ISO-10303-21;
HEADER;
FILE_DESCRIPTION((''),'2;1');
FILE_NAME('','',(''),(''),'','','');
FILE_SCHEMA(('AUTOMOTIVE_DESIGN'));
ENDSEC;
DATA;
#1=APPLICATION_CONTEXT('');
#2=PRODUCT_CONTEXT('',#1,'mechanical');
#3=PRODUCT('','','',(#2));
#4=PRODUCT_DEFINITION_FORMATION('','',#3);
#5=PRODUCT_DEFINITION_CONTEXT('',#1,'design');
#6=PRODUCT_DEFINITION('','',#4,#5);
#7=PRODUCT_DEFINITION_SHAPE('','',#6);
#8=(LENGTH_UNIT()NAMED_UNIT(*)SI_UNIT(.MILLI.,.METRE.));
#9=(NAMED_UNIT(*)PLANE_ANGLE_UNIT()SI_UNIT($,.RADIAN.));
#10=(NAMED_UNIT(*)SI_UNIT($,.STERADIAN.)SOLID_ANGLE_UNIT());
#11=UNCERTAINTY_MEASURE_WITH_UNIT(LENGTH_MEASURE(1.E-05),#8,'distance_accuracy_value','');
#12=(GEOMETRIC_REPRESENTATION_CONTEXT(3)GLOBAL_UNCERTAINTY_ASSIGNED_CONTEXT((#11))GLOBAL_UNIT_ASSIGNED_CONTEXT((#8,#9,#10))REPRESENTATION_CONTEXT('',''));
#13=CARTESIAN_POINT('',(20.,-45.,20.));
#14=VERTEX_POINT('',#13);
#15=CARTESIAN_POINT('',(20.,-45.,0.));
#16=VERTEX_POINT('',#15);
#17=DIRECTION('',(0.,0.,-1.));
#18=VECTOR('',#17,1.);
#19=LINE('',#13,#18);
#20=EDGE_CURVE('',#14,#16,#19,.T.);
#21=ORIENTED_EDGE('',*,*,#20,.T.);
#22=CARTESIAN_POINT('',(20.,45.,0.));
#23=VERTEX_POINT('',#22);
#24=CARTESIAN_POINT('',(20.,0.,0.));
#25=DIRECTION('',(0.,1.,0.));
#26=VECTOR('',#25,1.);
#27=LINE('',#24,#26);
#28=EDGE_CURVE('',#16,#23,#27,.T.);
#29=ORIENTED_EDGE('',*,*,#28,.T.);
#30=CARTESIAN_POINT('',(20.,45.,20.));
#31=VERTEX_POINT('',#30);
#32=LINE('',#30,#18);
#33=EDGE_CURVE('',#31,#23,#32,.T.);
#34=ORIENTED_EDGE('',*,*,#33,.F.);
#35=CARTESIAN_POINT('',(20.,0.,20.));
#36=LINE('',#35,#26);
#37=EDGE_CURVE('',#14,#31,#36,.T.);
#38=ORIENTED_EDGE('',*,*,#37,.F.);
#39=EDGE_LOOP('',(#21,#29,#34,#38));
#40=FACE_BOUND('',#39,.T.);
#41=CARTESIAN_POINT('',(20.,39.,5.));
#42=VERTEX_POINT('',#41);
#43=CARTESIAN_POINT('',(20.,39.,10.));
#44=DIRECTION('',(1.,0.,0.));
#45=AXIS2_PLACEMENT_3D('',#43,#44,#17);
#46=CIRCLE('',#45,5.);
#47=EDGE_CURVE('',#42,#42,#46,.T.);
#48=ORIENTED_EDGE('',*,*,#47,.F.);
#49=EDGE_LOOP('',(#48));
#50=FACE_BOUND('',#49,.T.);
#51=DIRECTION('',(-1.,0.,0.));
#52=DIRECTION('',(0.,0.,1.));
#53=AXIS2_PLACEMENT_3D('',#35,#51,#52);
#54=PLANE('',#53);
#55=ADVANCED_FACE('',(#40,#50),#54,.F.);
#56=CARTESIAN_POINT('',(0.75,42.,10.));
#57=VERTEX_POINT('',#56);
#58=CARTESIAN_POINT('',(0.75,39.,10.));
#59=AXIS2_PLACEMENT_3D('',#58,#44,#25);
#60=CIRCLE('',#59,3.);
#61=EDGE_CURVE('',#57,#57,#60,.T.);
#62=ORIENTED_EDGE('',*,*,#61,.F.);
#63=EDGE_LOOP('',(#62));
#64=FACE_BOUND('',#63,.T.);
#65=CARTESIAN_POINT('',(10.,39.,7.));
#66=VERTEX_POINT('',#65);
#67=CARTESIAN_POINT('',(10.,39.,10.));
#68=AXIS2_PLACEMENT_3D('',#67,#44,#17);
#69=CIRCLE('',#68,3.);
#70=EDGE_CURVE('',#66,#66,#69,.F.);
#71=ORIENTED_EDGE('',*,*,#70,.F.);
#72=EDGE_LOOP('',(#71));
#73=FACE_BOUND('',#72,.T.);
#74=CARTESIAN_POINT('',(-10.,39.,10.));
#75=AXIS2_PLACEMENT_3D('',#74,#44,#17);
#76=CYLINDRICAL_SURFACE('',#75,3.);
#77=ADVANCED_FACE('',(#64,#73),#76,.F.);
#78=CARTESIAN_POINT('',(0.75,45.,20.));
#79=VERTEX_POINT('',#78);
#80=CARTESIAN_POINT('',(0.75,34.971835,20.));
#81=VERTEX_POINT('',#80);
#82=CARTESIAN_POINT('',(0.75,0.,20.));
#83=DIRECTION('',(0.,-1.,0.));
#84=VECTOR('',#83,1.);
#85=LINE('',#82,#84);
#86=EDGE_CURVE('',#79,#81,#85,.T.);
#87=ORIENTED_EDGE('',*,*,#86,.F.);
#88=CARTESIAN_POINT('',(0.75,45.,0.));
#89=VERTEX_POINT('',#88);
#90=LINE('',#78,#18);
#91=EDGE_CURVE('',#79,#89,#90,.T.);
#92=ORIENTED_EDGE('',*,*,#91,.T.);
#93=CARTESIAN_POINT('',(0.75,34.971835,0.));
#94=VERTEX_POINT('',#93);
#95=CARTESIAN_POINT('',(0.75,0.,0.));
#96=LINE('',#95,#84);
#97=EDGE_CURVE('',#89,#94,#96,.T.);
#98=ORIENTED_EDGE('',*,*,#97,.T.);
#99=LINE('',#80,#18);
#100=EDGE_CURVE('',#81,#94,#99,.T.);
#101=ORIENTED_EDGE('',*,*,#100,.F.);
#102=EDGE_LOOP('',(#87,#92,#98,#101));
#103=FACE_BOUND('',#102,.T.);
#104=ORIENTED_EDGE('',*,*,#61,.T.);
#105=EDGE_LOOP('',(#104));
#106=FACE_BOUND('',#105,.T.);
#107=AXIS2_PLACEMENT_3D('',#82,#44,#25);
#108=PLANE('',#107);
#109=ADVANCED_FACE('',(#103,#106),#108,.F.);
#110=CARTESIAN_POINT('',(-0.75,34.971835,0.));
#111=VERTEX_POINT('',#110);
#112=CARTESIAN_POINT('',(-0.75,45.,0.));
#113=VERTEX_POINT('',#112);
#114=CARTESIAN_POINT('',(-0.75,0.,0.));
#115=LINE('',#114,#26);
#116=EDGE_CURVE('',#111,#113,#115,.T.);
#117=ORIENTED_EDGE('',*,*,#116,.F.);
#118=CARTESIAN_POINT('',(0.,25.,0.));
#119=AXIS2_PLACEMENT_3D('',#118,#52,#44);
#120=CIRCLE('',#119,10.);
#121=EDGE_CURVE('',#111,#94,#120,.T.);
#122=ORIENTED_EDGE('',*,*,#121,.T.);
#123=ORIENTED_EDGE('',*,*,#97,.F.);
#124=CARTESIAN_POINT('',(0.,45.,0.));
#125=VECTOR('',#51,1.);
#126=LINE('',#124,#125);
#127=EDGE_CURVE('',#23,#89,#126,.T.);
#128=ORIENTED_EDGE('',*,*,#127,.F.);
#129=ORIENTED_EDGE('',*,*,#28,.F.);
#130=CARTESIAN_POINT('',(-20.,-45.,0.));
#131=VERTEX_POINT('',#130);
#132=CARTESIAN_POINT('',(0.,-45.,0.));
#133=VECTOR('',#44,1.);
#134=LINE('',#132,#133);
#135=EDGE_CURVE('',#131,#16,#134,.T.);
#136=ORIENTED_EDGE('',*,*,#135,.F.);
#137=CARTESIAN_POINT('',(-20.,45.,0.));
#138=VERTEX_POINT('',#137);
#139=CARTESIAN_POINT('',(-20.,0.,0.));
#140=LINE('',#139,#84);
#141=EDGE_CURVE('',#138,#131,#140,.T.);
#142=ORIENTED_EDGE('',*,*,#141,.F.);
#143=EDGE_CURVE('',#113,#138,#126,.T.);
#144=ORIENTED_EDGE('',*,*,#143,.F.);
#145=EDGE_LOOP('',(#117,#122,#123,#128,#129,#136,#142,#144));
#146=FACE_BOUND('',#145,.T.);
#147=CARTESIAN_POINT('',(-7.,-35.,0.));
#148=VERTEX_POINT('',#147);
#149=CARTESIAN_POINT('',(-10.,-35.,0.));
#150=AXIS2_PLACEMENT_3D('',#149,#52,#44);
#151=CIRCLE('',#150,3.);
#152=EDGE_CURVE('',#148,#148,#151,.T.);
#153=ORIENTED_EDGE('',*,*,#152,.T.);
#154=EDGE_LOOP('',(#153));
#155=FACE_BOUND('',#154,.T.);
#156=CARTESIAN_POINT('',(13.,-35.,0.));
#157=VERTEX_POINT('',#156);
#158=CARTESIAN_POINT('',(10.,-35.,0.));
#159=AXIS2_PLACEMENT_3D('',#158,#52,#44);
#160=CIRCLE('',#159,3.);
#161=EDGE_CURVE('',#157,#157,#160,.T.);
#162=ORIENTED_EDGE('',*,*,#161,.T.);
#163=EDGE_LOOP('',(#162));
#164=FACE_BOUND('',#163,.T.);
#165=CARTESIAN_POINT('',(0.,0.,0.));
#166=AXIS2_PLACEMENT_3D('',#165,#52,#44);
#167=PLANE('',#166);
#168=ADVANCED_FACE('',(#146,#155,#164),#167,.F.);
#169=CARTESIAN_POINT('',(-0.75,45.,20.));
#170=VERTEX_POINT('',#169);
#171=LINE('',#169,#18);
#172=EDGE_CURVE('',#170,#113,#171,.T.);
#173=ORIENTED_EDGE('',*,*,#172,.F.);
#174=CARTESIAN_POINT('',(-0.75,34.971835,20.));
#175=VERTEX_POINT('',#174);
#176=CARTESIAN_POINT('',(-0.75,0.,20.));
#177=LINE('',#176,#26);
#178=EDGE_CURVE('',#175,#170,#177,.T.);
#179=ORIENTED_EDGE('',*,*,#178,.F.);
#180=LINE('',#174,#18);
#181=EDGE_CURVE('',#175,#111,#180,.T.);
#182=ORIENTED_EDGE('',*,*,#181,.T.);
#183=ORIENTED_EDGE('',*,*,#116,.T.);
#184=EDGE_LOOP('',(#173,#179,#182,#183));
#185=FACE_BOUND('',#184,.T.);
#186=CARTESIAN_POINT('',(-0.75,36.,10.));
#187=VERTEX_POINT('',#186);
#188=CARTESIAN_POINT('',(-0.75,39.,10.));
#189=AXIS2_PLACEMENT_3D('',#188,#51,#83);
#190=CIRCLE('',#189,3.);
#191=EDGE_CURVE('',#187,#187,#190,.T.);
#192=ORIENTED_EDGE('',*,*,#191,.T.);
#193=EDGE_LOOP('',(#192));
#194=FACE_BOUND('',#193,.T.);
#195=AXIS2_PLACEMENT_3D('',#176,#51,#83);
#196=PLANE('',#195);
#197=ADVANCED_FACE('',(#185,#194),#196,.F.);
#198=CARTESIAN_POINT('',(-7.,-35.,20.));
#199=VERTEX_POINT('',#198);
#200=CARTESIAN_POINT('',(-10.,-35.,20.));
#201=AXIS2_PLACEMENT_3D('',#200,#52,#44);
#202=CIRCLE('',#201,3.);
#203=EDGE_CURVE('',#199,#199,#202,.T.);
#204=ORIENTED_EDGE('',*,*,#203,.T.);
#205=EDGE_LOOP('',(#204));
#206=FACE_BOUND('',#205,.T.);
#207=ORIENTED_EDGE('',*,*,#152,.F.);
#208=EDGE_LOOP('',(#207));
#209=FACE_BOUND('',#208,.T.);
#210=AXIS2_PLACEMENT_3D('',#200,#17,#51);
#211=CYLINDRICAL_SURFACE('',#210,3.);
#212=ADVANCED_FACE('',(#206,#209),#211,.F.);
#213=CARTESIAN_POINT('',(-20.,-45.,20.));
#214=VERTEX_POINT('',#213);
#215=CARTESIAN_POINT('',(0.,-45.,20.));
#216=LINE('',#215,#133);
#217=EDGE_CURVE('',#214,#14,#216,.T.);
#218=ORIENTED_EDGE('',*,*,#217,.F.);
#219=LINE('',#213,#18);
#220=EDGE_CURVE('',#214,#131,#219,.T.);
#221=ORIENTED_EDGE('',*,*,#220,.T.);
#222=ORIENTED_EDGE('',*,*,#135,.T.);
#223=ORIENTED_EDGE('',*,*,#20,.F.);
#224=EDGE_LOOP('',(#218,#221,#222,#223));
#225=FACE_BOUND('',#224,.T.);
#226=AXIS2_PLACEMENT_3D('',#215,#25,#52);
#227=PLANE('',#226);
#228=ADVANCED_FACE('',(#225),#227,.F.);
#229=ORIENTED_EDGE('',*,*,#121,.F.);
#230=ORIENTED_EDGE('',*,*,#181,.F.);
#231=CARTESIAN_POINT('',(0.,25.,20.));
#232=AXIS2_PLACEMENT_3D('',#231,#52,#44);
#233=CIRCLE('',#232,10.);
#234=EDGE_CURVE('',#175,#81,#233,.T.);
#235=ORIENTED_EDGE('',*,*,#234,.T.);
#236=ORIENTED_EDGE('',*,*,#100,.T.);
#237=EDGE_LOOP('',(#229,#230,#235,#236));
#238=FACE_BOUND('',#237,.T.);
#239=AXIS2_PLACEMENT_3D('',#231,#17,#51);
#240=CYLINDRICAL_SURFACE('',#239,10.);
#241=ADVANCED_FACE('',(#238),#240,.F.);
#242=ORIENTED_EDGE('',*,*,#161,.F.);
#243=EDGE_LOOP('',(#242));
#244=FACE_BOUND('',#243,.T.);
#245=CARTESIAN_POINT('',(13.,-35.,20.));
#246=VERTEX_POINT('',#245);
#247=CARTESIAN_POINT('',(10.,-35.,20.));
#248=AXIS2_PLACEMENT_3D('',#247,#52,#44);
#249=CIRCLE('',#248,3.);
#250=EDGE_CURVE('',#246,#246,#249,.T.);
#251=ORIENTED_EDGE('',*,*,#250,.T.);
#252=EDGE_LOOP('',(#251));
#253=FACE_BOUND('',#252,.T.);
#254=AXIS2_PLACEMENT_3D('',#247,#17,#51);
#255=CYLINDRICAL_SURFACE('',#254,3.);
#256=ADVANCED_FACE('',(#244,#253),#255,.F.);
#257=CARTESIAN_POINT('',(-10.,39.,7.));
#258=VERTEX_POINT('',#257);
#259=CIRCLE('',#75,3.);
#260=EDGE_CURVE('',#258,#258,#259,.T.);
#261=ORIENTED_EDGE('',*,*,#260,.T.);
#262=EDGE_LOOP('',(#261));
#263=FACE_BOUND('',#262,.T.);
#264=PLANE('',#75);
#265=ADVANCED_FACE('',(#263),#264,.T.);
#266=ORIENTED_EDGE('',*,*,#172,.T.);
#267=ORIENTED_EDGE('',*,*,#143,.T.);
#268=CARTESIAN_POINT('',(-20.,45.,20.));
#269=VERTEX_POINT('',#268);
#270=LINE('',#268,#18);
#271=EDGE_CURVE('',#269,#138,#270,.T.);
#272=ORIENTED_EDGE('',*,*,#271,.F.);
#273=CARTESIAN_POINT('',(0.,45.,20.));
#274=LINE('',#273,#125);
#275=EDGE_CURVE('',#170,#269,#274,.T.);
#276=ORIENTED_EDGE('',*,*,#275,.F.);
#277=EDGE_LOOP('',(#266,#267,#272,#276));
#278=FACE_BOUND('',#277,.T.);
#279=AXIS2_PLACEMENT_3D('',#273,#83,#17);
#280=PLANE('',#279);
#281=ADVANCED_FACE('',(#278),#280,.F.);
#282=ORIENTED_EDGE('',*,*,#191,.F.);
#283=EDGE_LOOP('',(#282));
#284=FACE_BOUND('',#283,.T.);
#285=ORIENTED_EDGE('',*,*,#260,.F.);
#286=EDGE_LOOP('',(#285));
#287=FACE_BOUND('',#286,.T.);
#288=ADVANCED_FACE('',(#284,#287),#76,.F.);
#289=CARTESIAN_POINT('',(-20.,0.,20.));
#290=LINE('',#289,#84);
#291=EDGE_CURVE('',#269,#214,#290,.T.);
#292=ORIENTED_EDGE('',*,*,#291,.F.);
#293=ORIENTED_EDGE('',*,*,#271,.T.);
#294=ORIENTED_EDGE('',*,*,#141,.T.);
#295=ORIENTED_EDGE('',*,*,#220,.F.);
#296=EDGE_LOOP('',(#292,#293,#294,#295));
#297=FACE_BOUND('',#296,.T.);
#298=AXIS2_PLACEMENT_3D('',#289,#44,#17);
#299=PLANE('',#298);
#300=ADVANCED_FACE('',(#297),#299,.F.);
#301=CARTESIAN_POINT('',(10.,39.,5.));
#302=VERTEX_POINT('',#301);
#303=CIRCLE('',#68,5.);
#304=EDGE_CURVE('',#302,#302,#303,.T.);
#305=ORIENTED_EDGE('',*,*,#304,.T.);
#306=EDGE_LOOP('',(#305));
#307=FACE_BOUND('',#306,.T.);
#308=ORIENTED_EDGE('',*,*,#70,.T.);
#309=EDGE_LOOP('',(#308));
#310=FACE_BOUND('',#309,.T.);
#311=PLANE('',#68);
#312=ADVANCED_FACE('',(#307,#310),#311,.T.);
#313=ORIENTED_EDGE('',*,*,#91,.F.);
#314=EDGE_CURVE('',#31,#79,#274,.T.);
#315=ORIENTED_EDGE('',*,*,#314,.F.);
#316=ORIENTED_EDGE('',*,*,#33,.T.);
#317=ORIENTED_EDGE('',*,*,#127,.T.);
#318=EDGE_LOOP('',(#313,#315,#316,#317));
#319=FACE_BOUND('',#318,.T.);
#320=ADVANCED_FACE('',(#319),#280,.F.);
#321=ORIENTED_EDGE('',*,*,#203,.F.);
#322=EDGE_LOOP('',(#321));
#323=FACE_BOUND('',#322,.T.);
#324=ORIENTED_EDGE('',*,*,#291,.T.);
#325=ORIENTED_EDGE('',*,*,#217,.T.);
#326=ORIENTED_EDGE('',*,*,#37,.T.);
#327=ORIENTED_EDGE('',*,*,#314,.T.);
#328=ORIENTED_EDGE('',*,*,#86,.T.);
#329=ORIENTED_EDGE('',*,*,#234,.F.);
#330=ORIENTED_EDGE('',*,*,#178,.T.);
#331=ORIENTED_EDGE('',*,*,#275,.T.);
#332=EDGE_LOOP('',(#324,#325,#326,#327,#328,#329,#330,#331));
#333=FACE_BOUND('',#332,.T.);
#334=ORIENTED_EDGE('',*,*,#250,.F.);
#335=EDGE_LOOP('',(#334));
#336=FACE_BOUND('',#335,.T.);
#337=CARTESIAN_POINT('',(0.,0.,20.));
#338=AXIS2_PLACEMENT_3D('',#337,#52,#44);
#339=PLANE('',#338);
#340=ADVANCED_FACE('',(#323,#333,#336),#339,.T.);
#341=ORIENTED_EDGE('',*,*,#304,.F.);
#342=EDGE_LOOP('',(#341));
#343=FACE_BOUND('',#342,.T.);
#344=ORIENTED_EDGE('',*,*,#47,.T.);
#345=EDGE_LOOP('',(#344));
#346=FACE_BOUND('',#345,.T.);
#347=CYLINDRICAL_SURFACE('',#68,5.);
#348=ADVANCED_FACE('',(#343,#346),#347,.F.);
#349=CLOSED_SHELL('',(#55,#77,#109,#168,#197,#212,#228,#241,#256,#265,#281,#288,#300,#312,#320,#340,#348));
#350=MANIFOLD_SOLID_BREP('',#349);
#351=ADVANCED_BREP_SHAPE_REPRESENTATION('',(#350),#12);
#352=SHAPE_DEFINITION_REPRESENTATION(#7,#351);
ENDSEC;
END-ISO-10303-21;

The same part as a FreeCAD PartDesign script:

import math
import FreeCAD as App
import Part
import Sketcher

V = App.Vector
Q = App.Units.Quantity

doc = App.newDocument("Part")
body = doc.addObject("PartDesign::Body", "Body")

# Sketch on XY plane
sketch1 = body.newObject("Sketcher::SketchObject", "Sketch")
sketch1.AttachmentSupport = (doc.getObject("XY_Plane"), [""])
sketch1.MapMode = "FlatFace"
sketch1.addGeometry([
    Part.LineSegment(V(-0.8, 35, 0), V(-0.8, 45, 0)),  # 0
    Part.LineSegment(V(-0.8, 45, 0), V(-20, 45, 0)),  # 1
    Part.LineSegment(V(-20, 45, 0), V(-20, -45, 0)),  # 2
    Part.LineSegment(V(-20, -45, 0), V(20, -45, 0)),  # 3
    Part.LineSegment(V(20, -45, 0), V(20, 45, 0)),  # 4
    Part.LineSegment(V(20, 45, 0), V(0.8, 45, 0)),  # 5
    Part.LineSegment(V(0.8, 45, 0), V(0.8, 35, 0)),  # 6
    Part.ArcOfCircle(Part.Circle(V(0, 25, 0), V(0, 0, 1), 10), math.radians(94), math.radians(446)),  # 7
    Part.Circle(V(-10, -35, 0), V(0, 0, 1), 3),  # 8
    Part.Circle(V(10, -35, 0), V(0, 0, 1), 3),  # 9
], False)
sketch1.addConstraint([
    Sketcher.Constraint("Coincident", 0, 2, 1, 1),
    Sketcher.Constraint("Coincident", 1, 2, 2, 1),
    Sketcher.Constraint("Coincident", 2, 2, 3, 1),
    Sketcher.Constraint("Coincident", 3, 2, 4, 1),
    Sketcher.Constraint("Coincident", 4, 2, 5, 1),
    Sketcher.Constraint("Coincident", 5, 2, 6, 1),
    Sketcher.Constraint("Coincident", 6, 2, 7, 2),
    Sketcher.Constraint("Coincident", 7, 1, 0, 1),
    Sketcher.Constraint("Vertical", 0),
    Sketcher.Constraint("Horizontal", 1),
    Sketcher.Constraint("Vertical", 2),
    Sketcher.Constraint("Horizontal", 3),
    Sketcher.Constraint("Vertical", 4),
    Sketcher.Constraint("Horizontal", 5),
    Sketcher.Constraint("Vertical", 6),
    Sketcher.Constraint("Equal", 8, 9),
    Sketcher.Constraint("Symmetric", 1, 2, 3, 2, -1, 1),
    Sketcher.Constraint("Symmetric", 8, 3, 9, 3, -2),
    Sketcher.Constraint("Symmetric", 0, 2, 5, 2, -2),
    Sketcher.Constraint("PointOnObject", 7, 3, -2),
    Sketcher.Constraint("Diameter", 8, Q("6 mm")),
    Sketcher.Constraint("Radius", 7, Q("10 mm")),
    Sketcher.Constraint("DistanceX", 3, 1, 3, 2, Q("40 mm")),
    Sketcher.Constraint("DistanceY", 2, 2, 2, 1, Q("90 mm")),
    Sketcher.Constraint("DistanceY", -1, 1, 7, 3, Q("25 mm")),
    Sketcher.Constraint("DistanceX", 8, 3, -1, 1, Q("10 mm")),
    Sketcher.Constraint("DistanceY", 8, 3, -1, 1, Q("35 mm")),
    Sketcher.Constraint("DistanceX", 1, 2, 1, 1, Q("19.25 mm")),
])
pad1 = body.newObject("PartDesign::Pad", "Pad")
pad1.Profile = sketch1
pad1.Length = 20

# Sketch on YZ plane
sketch2 = body.newObject("Sketcher::SketchObject", "Sketch001")
sketch2.AttachmentSupport = (doc.getObject("YZ_Plane"), [""])
sketch2.MapMode = "FlatFace"
sketch2.AttachmentOffset = App.Placement(V(0, 0, 20), App.Rotation())
sketch2.addGeometry(Part.Circle(V(39, 10, 0), V(0, 0, 1), 3), False)
sketch2.addConstraint([
    Sketcher.Constraint("Diameter", 0, Q("6 mm")),
    Sketcher.Constraint("DistanceX", -1, 1, 0, 3, Q("39 mm")),
    Sketcher.Constraint("DistanceY", -1, 1, 0, 3, Q("10 mm")),
])
pocket1 = body.newObject("PartDesign::Pocket", "Pocket")
pocket1.Profile = sketch2
pocket1.Length = 30

# Sketch on YZ plane
sketch3 = body.newObject("Sketcher::SketchObject", "Sketch002")
sketch3.AttachmentSupport = (doc.getObject("YZ_Plane"), [""])
sketch3.MapMode = "FlatFace"
sketch3.AttachmentOffset = App.Placement(V(0, 0, 20), App.Rotation())
sketch3.addGeometry(Part.Circle(V(39, 10, 0), V(0, 0, 1), 5), False)
sketch3.addConstraint([
    Sketcher.Constraint("Diameter", 0, Q("10 mm")),
    Sketcher.Constraint("DistanceX", -1, 1, 0, 3, Q("39 mm")),
    Sketcher.Constraint("DistanceY", -1, 1, 0, 3, Q("10 mm")),
])
pocket2 = body.newObject("PartDesign::Pocket", "Pocket001")
pocket2.Profile = sketch3
pocket2.Length = 10

doc.recompute()
